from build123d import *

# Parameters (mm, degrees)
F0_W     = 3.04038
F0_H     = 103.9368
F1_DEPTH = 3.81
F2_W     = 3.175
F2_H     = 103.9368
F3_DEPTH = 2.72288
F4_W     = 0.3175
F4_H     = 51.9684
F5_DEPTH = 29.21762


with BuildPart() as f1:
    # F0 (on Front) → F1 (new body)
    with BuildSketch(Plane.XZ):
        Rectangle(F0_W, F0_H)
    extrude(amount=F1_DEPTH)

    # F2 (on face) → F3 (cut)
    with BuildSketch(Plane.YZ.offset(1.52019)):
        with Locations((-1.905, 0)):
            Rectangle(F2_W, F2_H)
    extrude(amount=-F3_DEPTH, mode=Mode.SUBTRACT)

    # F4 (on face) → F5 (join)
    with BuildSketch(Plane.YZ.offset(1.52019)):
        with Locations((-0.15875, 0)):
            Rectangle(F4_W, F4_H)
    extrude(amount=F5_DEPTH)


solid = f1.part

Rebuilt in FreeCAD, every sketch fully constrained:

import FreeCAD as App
import Part
import Sketcher
from FreeCAD import Vector
Q = App.Units.Quantity


def add_polygon(sketch, points):
    """Adds a closed chain of lines whose ends are joined by coincident constraints."""
    first, n = sketch.GeometryCount, len(points)
    for a, b in zip(points, points[1:] + points[:1]):
        sketch.addGeometry(Part.LineSegment(App.Vector(*a, 0), App.Vector(*b, 0)), False)
    for i in range(n):
        sketch.addConstraint(Sketcher.Constraint("Coincident", first + i, 2, first + (i + 1) % n, 1))

doc = App.newDocument("Part")
params = doc.addObject("Spreadsheet::Sheet", "Params")
for row, (alias, value) in enumerate([
    ("sketch1_height", "4.092 in"),
    ("pad1_length", "0.15 in"),
    ("sketch2_width", "0.125 in"),
    ("sketch2_height", "4.092 in"),
    ("pocket1_length", "0.1072 in"),
    ("sketch3_height", "2.046 in"),
    ("pad2_length", "1.1503 in"),
], start=1):
    params.set(f"A{row}", alias)
    params.set(f"B{row}", "=" + value)
    params.setAlias(f"B{row}", alias)

body = doc.addObject("PartDesign::Body", "Body")

sketch1 = body.newObject("Sketcher::SketchObject", "Sketch")
sketch1.AttachmentSupport = (doc.getObject("XZ_Plane"), [""])
sketch1.MapMode = "FlatFace"
add_polygon(sketch1, [(-1.5, 52), (-1.5, -52), (1.5, -52), (1.5, 52)])
sketch1.addConstraint([
    Sketcher.Constraint("Vertical", 0),
    Sketcher.Constraint("Horizontal", 1),
    Sketcher.Constraint("Vertical", 2),
    Sketcher.Constraint("Horizontal", 3),
    Sketcher.Constraint("Symmetric", 0, 2, 2, 2, -1, 1),
    Sketcher.Constraint("DistanceY", 0, 2, 0, 1, Q("4.092 in")),
    Sketcher.Constraint("DistanceX", 1, 1, 1, 2, Q("0.1197 in")),
])
sketch1.setExpression("Constraints[9]", "Params.sketch1_height")
pad1 = body.newObject("PartDesign::Pad", "Pad")
pad1.Profile = sketch1
pad1.setExpression("Length", "Params.pad1_length")

sketch2 = body.newObject("Sketcher::SketchObject", "Sketch001")
sketch2.AttachmentSupport = (doc.getObject("YZ_Plane"), [""])
sketch2.MapMode = "FlatFace"
sketch2.AttachmentOffset = App.Placement(Vector(0, 0, 1.52019), App.Rotation())
add_polygon(sketch2, [(-3.5, 52), (-3.5, -52), (-0.3, -52), (-0.3, 52)])
sketch2.addConstraint([
    Sketcher.Constraint("Vertical", 0),
    Sketcher.Constraint("Horizontal", 1),
    Sketcher.Constraint("Vertical", 2),
    Sketcher.Constraint("Horizontal", 3),
    Sketcher.Constraint("DistanceX", 1, 1, 1, 2, Q("0.125 in")),
    Sketcher.Constraint("DistanceY", 0, 2, 0, 1, Q("4.092 in")),
    Sketcher.Constraint("DistanceY", 0, 2, -1, 1, Q("2.046 in")),
    Sketcher.Constraint("DistanceX", 0, 2, -1, 1, Q("0.1375 in")),
])
sketch2.setExpression("Constraints[8]", "Params.sketch2_width")
sketch2.setExpression("Constraints[9]", "Params.sketch2_height")
pocket1 = body.newObject("PartDesign::Pocket", "Pocket")
pocket1.Profile = sketch2
pocket1.setExpression("Length", "Params.pocket1_length")

sketch3 = body.newObject("Sketcher::SketchObject", "Sketch002")
sketch3.AttachmentSupport = (doc.getObject("YZ_Plane"), [""])
sketch3.MapMode = "FlatFace"
sketch3.AttachmentOffset = App.Placement(Vector(0, 0, 1.52019), App.Rotation())
add_polygon(sketch3, [(-0.32, 25.98), (-0.32, -25.98), (0, -25.98), (0, 25.98)])
sketch3.addConstraint([
    Sketcher.Constraint("Vertical", 0),
    Sketcher.Constraint("Horizontal", 1),
    Sketcher.Constraint("Vertical", 2),
    Sketcher.Constraint("Horizontal", 3),
    Sketcher.Constraint("Symmetric", 1, 2, 2, 2, -1, 1),
    Sketcher.Constraint("DistanceY", 0, 2, 0, 1, Q("2.046 in")),
    Sketcher.Constraint("DistanceX", 1, 1, 1, 2, Q("0.0125 in")),
])
sketch3.setExpression("Constraints[9]", "Params.sketch3_height")
pad2 = body.newObject("PartDesign::Pad", "Pad001")
pad2.Profile = sketch3
pad2.setExpression("Length", "Params.pad2_length")

doc.recompute()
